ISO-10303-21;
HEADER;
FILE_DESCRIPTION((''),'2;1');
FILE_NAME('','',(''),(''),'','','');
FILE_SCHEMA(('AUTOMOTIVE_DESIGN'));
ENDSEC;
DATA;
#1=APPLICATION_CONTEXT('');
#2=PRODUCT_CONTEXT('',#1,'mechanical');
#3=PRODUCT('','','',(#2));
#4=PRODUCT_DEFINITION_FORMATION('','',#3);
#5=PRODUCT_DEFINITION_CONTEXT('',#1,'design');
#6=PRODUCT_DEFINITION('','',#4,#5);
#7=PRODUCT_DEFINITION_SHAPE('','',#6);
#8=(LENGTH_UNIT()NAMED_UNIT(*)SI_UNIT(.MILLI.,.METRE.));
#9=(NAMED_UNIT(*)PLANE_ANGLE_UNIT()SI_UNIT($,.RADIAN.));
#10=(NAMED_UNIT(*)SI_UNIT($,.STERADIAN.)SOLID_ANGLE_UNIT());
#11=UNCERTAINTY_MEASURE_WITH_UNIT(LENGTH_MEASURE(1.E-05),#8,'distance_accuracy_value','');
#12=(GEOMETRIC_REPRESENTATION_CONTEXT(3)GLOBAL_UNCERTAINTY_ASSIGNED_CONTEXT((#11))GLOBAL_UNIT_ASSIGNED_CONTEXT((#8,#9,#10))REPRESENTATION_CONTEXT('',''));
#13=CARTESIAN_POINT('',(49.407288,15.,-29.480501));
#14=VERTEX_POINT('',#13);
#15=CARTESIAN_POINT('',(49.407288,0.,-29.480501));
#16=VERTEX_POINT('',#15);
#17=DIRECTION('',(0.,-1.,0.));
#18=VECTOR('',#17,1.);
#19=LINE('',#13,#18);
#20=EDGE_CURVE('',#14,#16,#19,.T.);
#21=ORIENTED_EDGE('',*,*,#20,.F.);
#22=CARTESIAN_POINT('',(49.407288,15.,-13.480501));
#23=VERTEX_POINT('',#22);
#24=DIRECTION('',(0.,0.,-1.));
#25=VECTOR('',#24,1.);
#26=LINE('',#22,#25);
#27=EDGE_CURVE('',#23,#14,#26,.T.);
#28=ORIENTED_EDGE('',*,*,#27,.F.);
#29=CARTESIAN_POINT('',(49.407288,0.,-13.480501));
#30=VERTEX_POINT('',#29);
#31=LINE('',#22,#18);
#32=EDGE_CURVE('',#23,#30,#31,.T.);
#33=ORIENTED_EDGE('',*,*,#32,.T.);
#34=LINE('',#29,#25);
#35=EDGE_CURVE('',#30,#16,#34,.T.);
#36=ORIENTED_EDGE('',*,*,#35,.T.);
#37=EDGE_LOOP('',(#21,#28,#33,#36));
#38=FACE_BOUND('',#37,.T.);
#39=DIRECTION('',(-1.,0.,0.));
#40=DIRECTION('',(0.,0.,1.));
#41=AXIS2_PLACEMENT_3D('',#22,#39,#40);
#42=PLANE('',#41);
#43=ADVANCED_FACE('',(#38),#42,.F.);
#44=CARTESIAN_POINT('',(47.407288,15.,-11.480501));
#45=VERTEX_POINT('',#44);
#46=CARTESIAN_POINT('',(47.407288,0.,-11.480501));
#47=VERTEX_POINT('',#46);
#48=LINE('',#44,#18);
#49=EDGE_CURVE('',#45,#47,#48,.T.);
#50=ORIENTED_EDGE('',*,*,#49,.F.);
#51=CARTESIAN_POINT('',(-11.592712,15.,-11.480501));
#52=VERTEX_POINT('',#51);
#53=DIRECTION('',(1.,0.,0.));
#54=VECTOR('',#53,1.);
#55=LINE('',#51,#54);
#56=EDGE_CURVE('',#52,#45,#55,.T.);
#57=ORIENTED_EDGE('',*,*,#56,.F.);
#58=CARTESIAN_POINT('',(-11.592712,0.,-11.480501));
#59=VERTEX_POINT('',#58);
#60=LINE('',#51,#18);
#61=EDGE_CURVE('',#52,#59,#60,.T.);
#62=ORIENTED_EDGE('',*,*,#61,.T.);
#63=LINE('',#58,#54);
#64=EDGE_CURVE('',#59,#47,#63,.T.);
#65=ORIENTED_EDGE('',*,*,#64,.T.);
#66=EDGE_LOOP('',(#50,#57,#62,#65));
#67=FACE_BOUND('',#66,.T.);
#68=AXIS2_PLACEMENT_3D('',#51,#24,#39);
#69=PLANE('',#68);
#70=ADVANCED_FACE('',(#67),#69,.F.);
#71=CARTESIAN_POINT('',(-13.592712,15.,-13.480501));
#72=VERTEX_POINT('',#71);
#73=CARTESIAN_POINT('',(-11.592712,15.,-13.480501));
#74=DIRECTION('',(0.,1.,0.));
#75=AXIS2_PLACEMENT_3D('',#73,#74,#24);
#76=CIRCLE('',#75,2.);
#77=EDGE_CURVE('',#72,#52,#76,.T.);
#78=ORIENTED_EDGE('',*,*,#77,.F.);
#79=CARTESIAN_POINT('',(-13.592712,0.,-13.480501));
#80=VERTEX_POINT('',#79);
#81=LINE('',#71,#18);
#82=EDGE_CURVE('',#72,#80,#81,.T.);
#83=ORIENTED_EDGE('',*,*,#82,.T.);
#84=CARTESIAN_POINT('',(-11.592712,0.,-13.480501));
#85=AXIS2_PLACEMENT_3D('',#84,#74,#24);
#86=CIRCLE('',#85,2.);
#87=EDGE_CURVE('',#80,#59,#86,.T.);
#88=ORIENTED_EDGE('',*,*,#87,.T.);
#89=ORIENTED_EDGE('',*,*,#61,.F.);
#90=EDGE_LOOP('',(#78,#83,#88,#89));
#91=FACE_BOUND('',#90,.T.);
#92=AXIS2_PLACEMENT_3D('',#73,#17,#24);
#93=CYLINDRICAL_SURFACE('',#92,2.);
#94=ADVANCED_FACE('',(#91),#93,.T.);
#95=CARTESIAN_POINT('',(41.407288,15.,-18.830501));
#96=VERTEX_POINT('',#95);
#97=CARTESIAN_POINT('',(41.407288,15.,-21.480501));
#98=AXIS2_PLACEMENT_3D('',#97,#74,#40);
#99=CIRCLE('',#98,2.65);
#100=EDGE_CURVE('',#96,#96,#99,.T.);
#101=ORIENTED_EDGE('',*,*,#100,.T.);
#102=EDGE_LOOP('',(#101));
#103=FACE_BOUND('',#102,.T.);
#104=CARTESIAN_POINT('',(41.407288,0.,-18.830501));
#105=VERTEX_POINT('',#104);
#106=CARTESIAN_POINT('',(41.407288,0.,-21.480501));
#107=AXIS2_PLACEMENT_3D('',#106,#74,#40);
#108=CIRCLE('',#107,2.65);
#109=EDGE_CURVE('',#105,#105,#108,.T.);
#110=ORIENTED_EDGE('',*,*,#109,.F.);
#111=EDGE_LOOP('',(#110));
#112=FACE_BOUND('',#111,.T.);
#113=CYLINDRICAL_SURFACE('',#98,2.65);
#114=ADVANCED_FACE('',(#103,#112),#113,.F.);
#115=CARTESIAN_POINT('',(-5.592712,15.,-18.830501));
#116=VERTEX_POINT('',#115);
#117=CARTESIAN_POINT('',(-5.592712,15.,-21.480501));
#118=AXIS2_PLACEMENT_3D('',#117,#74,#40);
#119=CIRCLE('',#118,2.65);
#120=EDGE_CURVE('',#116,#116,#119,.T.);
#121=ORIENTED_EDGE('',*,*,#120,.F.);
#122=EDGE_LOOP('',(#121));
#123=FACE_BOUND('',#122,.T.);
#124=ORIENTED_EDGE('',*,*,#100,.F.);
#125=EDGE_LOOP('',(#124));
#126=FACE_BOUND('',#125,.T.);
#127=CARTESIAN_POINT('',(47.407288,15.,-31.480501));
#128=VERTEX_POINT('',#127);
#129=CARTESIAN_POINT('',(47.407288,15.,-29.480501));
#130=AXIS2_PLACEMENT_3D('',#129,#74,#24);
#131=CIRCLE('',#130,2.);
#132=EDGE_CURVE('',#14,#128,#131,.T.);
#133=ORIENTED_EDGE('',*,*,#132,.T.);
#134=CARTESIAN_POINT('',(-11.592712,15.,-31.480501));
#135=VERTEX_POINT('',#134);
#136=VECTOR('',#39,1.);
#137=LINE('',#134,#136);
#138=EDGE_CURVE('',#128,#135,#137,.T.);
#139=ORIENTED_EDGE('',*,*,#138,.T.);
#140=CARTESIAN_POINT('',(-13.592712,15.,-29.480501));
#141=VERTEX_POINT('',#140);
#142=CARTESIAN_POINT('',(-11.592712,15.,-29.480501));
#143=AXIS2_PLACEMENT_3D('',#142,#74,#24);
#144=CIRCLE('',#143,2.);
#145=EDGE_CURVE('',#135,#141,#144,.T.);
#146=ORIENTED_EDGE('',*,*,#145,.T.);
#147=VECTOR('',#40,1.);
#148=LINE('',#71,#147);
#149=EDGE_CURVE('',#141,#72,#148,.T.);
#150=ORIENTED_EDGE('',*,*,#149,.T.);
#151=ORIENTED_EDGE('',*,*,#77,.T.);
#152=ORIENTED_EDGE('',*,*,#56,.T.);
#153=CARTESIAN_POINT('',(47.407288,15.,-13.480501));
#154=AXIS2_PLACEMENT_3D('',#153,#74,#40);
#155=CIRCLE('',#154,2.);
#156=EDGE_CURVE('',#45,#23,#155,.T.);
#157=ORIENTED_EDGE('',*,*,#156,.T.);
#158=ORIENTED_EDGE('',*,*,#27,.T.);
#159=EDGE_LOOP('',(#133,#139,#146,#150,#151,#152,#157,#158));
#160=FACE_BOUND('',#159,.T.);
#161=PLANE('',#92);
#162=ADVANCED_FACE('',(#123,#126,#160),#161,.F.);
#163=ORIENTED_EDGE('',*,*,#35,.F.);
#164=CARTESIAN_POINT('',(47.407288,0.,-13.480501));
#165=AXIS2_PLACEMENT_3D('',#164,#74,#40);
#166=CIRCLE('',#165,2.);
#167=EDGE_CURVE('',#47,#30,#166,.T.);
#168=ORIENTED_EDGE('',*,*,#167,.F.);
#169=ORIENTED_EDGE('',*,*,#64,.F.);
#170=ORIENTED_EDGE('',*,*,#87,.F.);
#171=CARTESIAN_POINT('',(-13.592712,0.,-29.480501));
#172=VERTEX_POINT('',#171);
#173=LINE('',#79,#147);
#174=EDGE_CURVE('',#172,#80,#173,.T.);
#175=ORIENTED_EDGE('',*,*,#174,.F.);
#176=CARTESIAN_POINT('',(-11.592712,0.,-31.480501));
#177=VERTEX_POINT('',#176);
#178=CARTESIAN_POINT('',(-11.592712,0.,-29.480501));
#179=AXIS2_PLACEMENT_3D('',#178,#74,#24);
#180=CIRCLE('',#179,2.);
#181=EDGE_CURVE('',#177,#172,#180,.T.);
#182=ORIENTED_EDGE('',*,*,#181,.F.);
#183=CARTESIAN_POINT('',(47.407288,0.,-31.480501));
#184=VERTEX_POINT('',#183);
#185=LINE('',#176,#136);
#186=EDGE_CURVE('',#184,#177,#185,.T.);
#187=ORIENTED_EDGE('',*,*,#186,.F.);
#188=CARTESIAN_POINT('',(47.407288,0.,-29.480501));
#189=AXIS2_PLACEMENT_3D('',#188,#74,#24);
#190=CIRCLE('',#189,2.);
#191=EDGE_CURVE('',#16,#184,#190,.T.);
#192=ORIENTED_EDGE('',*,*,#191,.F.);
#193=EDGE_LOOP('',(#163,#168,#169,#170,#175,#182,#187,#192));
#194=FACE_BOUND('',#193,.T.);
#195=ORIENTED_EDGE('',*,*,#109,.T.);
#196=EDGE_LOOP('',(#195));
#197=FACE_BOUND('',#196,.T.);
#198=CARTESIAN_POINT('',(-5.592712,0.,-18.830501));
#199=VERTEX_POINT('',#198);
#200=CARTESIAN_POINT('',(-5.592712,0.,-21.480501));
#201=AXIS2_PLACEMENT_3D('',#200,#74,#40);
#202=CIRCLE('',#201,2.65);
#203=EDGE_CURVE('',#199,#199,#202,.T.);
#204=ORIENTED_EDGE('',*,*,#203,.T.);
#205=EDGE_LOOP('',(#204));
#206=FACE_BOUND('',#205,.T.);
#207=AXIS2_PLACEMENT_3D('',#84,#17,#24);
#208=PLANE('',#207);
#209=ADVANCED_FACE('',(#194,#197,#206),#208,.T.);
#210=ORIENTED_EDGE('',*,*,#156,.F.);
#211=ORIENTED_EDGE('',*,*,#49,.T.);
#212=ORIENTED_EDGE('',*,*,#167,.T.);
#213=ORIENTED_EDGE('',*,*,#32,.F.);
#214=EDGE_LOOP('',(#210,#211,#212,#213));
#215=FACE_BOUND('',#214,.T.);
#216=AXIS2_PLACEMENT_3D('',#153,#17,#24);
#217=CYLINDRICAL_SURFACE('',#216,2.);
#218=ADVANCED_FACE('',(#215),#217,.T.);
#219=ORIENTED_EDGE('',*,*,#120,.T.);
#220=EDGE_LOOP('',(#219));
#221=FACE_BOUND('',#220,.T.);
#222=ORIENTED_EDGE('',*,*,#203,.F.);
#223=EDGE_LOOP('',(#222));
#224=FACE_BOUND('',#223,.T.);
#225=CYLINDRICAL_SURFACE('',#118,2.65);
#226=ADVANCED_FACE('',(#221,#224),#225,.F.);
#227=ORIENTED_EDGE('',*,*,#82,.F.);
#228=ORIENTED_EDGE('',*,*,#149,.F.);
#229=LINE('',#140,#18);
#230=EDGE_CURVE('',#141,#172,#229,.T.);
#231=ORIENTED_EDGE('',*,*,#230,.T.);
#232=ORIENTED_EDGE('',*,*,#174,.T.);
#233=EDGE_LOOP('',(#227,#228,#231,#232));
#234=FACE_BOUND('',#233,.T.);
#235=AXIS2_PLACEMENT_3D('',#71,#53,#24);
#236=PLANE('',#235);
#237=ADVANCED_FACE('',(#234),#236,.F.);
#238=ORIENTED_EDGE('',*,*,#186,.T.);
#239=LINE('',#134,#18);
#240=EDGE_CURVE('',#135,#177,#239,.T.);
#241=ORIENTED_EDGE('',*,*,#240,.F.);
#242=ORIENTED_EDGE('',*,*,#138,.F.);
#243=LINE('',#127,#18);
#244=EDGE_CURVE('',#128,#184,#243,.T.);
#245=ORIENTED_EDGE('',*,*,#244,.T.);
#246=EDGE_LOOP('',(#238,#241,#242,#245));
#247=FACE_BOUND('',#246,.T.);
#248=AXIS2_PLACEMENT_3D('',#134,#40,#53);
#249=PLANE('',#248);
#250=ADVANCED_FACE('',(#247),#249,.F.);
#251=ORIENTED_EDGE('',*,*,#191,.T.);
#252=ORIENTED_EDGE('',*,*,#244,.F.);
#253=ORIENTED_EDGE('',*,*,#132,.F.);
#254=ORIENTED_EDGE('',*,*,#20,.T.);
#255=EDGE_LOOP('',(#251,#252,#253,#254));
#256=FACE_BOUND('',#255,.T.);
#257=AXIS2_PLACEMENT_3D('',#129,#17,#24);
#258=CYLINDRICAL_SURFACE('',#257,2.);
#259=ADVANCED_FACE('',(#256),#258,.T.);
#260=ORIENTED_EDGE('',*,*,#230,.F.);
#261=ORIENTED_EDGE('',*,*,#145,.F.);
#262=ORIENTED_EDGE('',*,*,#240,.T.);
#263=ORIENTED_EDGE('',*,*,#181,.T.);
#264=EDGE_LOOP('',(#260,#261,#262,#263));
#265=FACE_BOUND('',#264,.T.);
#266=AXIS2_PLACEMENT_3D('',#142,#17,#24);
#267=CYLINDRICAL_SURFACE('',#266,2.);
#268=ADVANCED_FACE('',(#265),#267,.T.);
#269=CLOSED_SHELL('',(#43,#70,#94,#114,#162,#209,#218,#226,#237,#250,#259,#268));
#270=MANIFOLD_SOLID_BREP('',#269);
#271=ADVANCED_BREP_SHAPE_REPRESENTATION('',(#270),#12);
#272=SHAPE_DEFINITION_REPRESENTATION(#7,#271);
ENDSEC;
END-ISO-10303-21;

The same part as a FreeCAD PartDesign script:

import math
import FreeCAD as App
import Part
import Sketcher

doc = App.newDocument("Part")
body = doc.addObject("PartDesign::Body", "Body")

# Sketch on XZ plane
sketch1 = body.newObject("Sketcher::SketchObject", "Sketch")
sketch1.AttachmentSupport = (doc.getObject("XZ_Plane"), [""])
sketch1.MapMode = "FlatFace"
sketch1.addGeometry([
    Part.LineSegment(App.Vector(-11.6, -11.5, 0), App.Vector(47.4, -11.5, 0)),  # 0
    Part.ArcOfCircle(Part.Circle(App.Vector(47.4, -13.5, 0), App.Vector(0, 0, 1), 2), math.radians(0), math.radians(90)),  # 1
    Part.LineSegment(App.Vector(49.4, -13.5, 0), App.Vector(49.4, -29.5, 0)),  # 2
    Part.ArcOfCircle(Part.Circle(App.Vector(47.4, -29.5, 0), App.Vector(0, 0, 1), 2), math.radians(-90), math.radians(0)),  # 3
    Part.LineSegment(App.Vector(47.4, -31.5, 0), App.Vector(-11.6, -31.5, 0)),  # 4
    Part.ArcOfCircle(Part.Circle(App.Vector(-11.6, -29.5, 0), App.Vector(0, 0, 1), 2), math.radians(180), math.radians(270)),  # 5
    Part.LineSegment(App.Vector(-13.6, -29.5, 0), App.Vector(-13.6, -13.5, 0)),  # 6
    Part.ArcOfCircle(Part.Circle(App.Vector(-11.6, -13.5, 0), App.Vector(0, 0, 1), 2), math.radians(90), math.radians(180)),  # 7
], False)
sketch1.addConstraint([
    Sketcher.Constraint("Tangent", 0, 2, 1, 2),
    Sketcher.Constraint("Tangent", 1, 1, 2, 1),
    Sketcher.Constraint("Tangent", 2, 2, 3, 2),
    Sketcher.Constraint("Tangent", 3, 1, 4, 1),
    Sketcher.Constraint("Tangent", 4, 2, 5, 2),
    Sketcher.Constraint("Tangent", 5, 1, 6, 1),
    Sketcher.Constraint("Tangent", 6, 2, 7, 2),
    Sketcher.Constraint("Tangent", 7, 1, 0, 1),
    Sketcher.Constraint("Horizontal", 0),
    Sketcher.Constraint("Vertical", 2),
    Sketcher.Constraint("Horizontal", 4),
    Sketcher.Constraint("Vertical", 6),
    Sketcher.Constraint("Equal", 1, 3),
    Sketcher.Constraint("Equal", 3, 5),
    Sketcher.Constraint("Equal", 5, 7),
    Sketcher.Constraint("Radius", 1, 2.0),
    Sketcher.Constraint("DistanceX", 0, 1, 0, 2, 59.0),
    Sketcher.Constraint("DistanceY", 2, 2, 2, 1, 16.0),
    Sketcher.Constraint("DistanceY", 1, 3, -1, 1, 13.480501),
    Sketcher.Constraint("DistanceX", -1, 1, 1, 3, 47.407288),
])
pad1 = body.newObject("PartDesign::Pad", "Pad")
pad1.Profile = sketch1
pad1.Length = 15
pad1.Reversed = True

# Sketch on XZ plane
sketch2 = body.newObject("Sketcher::SketchObject", "Sketch001")
sketch2.AttachmentSupport = (doc.getObject("XZ_Plane"), [""])
sketch2.MapMode = "FlatFace"
sketch2.AttachmentOffset = App.Placement(App.Vector(0, 0, -15), App.Rotation())
sketch2.addGeometry([
    Part.Circle(App.Vector(-5.6, -21.5, 0), App.Vector(0, 0, 1), 2.6),
    Part.Circle(App.Vector(41.4, -21.5, 0), App.Vector(0, 0, 1), 2.6),
], False)
sketch2.addConstraint([
    Sketcher.Constraint("Equal", 0, 1),
    Sketcher.Constraint("Horizontal", 0, 3, 1, 3),
    Sketcher.Constraint("Diameter", 0, 5.3),
    Sketcher.Constraint("DistanceX", 0, 3, 1, 3, 47.0),
    Sketcher.Constraint("DistanceY", 0, 3, -1, 1, 21.480501),
    Sketcher.Constraint("DistanceX", 0, 3, -1, 1, 5.592712),
])
doc.recompute()
hole = body.newObject("PartDesign::Hole", "Hole")
hole.Profile = sketch2
hole.ThreadType = "None"
hole.Diameter = 5.3
hole.DepthType = "ThroughAll"
hole.Reversed = True

doc.recompute()
